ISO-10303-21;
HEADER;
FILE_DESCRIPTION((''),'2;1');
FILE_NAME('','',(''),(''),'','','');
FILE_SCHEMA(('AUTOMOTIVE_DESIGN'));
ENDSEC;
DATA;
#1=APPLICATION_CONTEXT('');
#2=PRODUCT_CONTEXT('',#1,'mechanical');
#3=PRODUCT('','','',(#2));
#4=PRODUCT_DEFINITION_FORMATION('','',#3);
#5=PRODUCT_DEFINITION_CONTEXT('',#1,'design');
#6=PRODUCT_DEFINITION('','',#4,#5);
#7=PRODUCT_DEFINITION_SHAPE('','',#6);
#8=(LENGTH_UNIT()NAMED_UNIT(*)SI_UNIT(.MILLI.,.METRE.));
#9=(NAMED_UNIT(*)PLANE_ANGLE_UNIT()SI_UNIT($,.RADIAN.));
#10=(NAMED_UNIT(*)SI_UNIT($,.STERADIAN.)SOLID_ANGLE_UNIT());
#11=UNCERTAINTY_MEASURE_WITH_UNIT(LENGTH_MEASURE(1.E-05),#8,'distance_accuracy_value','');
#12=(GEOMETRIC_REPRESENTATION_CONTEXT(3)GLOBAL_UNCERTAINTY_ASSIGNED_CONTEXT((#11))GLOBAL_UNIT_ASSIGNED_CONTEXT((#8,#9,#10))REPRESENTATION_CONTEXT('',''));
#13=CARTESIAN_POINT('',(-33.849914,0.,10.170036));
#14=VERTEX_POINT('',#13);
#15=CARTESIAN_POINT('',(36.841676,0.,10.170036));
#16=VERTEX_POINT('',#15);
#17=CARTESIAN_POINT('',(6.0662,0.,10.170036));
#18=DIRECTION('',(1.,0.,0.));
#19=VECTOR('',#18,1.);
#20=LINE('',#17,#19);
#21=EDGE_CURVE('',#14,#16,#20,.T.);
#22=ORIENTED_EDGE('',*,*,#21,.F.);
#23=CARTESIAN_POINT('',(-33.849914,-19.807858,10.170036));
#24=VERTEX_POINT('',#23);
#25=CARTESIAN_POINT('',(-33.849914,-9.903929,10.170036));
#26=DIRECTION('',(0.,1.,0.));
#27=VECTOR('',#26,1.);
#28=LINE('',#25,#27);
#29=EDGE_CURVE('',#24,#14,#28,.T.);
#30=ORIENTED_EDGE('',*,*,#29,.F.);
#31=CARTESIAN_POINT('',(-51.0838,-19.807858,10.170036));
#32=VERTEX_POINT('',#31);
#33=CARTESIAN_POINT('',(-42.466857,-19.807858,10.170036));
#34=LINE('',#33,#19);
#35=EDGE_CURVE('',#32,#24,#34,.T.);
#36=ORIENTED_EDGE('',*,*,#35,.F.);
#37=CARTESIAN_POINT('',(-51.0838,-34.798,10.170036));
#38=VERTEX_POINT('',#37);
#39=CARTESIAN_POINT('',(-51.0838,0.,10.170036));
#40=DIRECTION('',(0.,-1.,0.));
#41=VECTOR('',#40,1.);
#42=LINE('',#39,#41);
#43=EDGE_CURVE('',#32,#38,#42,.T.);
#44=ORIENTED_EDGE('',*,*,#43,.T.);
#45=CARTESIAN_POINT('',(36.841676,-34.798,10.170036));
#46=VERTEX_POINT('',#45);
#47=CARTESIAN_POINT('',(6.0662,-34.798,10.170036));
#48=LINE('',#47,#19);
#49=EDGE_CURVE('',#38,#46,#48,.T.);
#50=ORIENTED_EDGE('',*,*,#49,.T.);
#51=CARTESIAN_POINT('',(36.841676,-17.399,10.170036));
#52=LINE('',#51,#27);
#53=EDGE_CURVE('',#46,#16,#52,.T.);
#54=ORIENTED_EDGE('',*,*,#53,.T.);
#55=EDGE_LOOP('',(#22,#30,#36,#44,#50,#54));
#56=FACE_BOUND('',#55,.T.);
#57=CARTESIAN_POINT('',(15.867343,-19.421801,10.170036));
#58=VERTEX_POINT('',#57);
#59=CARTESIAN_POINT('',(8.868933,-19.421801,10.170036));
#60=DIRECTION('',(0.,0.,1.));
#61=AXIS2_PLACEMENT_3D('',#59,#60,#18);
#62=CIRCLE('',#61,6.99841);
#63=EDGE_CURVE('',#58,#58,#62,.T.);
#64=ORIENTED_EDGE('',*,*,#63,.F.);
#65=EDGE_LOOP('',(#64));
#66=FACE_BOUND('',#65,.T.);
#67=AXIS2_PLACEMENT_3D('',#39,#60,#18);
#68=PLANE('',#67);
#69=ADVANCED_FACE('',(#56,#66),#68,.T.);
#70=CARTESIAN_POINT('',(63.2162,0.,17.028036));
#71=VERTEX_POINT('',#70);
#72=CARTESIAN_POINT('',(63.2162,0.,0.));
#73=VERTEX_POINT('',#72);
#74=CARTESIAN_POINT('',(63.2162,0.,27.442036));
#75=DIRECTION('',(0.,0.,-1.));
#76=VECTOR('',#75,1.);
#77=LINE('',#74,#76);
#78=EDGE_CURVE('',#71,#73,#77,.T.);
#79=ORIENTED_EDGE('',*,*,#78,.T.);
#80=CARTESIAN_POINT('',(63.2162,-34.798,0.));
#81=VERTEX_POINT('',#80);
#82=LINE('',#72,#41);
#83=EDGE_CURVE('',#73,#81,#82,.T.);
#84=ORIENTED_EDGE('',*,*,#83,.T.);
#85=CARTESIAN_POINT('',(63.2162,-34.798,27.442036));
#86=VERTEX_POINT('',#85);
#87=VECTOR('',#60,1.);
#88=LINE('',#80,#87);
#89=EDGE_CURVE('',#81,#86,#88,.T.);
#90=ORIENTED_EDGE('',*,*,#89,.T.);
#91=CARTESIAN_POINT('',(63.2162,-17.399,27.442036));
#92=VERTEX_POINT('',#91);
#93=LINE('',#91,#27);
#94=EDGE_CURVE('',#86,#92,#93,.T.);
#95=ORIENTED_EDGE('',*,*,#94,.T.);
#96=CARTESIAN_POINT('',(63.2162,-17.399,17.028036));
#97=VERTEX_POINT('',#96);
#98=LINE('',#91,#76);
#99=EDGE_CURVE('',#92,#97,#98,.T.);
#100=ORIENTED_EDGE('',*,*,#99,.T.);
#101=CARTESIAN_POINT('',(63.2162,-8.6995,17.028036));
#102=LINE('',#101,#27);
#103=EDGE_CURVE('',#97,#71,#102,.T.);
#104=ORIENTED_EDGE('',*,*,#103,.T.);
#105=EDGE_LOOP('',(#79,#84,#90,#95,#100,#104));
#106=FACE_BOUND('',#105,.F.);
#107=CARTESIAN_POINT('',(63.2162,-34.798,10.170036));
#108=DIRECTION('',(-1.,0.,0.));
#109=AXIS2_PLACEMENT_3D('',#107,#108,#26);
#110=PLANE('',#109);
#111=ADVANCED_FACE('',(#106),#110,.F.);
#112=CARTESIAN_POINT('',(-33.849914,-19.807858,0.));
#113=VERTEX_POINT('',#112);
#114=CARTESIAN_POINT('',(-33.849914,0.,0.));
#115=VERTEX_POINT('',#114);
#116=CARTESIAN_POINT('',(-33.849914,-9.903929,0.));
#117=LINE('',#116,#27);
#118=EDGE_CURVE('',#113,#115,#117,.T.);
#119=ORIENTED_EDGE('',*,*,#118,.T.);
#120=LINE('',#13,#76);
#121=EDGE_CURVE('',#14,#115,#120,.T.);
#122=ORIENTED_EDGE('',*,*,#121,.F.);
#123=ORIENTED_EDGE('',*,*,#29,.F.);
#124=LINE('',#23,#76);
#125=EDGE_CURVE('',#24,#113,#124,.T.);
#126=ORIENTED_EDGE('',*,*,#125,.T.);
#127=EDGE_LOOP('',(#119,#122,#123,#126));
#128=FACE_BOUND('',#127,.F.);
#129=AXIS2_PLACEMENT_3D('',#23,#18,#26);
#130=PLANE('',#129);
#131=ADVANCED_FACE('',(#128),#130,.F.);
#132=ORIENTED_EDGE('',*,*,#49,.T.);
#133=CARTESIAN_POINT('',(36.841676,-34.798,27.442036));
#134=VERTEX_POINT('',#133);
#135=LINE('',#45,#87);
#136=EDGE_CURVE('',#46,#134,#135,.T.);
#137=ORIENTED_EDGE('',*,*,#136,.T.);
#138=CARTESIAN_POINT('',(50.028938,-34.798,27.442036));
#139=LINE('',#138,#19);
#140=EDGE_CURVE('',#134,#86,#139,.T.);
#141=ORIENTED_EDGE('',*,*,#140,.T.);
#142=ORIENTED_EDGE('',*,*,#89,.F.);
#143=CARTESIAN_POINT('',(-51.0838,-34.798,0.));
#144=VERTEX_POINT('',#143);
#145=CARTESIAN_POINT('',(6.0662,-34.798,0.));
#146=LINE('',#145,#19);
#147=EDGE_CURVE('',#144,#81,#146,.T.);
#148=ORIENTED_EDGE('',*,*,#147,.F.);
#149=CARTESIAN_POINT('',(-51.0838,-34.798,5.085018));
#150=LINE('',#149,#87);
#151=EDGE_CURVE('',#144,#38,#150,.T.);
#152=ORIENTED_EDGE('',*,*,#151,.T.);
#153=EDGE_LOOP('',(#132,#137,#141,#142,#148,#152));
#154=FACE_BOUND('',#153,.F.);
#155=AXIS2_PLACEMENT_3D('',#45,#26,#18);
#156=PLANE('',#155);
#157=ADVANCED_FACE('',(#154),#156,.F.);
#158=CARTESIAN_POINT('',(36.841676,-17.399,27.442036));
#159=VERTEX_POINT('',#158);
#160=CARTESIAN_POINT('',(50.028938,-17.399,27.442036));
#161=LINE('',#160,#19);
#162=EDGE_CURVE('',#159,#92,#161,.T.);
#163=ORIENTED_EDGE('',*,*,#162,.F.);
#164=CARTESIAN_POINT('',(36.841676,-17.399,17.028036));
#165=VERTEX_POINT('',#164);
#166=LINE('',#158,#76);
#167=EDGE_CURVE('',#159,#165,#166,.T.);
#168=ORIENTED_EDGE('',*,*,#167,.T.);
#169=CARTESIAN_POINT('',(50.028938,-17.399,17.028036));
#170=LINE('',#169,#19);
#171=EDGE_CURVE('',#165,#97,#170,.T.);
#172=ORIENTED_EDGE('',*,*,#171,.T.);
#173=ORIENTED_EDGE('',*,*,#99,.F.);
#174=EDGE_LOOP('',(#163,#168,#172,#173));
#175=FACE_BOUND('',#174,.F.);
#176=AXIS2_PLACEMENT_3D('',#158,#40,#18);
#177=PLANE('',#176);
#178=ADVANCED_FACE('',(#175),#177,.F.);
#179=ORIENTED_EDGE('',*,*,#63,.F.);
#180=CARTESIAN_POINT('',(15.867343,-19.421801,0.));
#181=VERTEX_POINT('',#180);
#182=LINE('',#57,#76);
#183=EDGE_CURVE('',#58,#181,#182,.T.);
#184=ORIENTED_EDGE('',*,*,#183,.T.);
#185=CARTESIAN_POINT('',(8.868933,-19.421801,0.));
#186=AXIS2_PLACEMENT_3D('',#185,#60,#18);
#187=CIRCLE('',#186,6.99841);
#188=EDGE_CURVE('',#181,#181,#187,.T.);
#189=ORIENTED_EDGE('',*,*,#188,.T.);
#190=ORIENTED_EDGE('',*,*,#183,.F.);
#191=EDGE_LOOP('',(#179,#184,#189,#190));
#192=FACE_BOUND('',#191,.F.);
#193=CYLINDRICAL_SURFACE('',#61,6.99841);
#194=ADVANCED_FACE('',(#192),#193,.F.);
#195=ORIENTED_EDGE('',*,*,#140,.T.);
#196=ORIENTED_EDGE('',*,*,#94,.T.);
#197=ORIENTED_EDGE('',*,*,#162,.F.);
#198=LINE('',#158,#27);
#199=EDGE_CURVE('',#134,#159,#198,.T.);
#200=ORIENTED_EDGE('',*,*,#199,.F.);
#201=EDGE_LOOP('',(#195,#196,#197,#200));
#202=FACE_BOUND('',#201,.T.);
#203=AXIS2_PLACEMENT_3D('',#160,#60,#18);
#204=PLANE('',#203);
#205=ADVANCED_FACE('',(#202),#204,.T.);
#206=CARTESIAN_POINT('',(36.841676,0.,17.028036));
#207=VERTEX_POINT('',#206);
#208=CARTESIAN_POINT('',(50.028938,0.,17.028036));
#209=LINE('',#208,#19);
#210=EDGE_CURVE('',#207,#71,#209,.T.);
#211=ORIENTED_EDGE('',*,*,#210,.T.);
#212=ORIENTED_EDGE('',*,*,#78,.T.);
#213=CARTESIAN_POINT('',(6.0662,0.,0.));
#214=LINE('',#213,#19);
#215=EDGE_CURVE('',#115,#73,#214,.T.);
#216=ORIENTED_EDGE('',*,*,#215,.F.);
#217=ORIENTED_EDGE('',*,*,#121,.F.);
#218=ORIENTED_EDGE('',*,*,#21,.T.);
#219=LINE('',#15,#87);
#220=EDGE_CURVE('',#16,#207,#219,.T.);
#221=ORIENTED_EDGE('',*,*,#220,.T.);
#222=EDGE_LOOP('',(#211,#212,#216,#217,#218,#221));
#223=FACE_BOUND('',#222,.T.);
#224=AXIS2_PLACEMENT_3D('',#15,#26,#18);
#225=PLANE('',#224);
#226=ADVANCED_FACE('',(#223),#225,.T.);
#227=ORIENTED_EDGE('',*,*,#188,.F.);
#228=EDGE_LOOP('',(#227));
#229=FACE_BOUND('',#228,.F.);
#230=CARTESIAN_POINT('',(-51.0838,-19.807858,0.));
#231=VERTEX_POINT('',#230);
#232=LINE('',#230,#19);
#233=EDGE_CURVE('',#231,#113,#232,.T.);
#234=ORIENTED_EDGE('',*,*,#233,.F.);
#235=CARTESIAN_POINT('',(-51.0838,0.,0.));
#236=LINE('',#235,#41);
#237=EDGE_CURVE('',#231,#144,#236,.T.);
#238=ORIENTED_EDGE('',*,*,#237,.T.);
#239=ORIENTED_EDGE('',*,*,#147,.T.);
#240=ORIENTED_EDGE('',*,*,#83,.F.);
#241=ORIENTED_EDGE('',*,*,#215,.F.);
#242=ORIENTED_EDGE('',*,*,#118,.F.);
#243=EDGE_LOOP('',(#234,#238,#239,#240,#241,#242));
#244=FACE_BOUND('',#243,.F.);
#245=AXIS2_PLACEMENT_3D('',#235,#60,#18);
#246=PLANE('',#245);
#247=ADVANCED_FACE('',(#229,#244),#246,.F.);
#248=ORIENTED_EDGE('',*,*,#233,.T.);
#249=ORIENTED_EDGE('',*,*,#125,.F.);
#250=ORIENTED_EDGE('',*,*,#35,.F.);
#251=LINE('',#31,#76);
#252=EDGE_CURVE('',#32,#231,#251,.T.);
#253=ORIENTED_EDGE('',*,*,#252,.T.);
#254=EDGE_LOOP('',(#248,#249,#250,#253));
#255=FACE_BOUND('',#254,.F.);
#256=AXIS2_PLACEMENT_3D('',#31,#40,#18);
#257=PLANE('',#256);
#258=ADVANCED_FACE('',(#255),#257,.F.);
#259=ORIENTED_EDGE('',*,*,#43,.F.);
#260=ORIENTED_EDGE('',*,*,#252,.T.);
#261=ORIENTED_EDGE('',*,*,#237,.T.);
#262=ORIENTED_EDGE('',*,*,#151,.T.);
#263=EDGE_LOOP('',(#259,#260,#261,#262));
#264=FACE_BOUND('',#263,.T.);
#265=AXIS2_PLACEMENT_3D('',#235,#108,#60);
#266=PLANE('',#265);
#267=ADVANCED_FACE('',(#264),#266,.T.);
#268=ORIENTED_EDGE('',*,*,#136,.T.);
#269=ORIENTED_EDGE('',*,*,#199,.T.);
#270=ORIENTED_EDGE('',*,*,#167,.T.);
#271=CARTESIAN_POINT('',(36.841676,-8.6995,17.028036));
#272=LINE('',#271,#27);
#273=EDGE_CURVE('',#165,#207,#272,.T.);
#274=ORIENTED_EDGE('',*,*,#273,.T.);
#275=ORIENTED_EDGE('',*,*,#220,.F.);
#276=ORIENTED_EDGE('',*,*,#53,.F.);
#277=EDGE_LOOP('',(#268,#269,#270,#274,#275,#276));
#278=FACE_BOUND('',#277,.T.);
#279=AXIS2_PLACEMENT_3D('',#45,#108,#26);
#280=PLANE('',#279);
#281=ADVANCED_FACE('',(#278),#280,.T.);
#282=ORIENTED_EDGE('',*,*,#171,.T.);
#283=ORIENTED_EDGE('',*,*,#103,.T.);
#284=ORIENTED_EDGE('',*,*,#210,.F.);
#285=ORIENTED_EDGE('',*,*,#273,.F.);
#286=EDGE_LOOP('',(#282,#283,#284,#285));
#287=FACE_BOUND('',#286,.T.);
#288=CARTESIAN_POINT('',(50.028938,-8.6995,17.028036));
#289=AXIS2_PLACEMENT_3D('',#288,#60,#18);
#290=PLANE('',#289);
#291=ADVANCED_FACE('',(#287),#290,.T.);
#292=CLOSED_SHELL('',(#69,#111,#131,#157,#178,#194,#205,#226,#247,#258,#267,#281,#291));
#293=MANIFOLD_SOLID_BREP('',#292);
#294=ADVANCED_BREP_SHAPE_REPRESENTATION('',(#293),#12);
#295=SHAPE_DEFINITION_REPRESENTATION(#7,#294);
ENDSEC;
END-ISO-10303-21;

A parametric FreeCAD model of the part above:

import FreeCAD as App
import Part
import Sketcher
Q = App.Units.Quantity

doc = App.newDocument("Part")
body = doc.addObject("PartDesign::Body", "Body")

sketch1 = body.newObject("Sketcher::SketchObject", "Sketch")
sketch1.AttachmentSupport = (doc.getObject("XZ_Plane"), [""])
sketch1.MapMode = "FlatFace"
sketch1.addGeometry(Part.LineSegment(App.Vector(-51.0838, 10.170036, 0), App.Vector(-51.0838, 0, 0)), False)
sketch1.addGeometry(Part.LineSegment(App.Vector(-51.0838, 0, 0), App.Vector(63.2162, 0, 0)), False)
sketch1.addGeometry(Part.LineSegment(App.Vector(63.2162, 0, 0), App.Vector(63.2162, 10.170036, 0)), False)
sketch1.addGeometry(Part.LineSegment(App.Vector(63.2162, 10.170036, 0), App.Vector(-51.0838, 10.170036, 0)), False)
sketch1.addConstraint(Sketcher.Constraint("Coincident", 0, 2, 1, 1))
sketch1.addConstraint(Sketcher.Constraint("Coincident", 1, 2, 2, 1))
sketch1.addConstraint(Sketcher.Constraint("Coincident", 2, 2, 3, 1))
sketch1.addConstraint(Sketcher.Constraint("Coincident", 3, 2, 0, 1))
sketch1.addConstraint(Sketcher.Constraint("Vertical", 0))
sketch1.addConstraint(Sketcher.Constraint("Horizontal", 1))
sketch1.addConstraint(Sketcher.Constraint("Vertical", 2))
sketch1.addConstraint(Sketcher.Constraint("Horizontal", 3))
sketch1.addConstraint(Sketcher.Constraint("PointOnObject", 0, 2, -1))
sketch1.addConstraint(Sketcher.Constraint("DistanceX", 1, 1, 1, 2, Q("4.5 in")))
sketch1.addConstraint(Sketcher.Constraint("DistanceX", 0, 2, -1, 1, 51.0838))
sketch1.addConstraint(Sketcher.Constraint("DistanceY", 0, 2, 0, 1, 10.170036))
pad1 = body.newObject("PartDesign::Pad", "Pad")
pad1.Profile = sketch1
pad1.Length = Q("1.37 in")

sketch2 = body.newObject("Sketcher::SketchObject", "Sketch001")
sketch2.AttachmentSupport = (doc.getObject("XY_Plane"), [""])
sketch2.MapMode = "FlatFace"
sketch2.AttachmentOffset = App.Placement(App.Vector(0, 0, 10.170036), App.Rotation())
sketch2.addGeometry(Part.LineSegment(App.Vector(-51.0838, 0, 0), App.Vector(-51.0838, -19.807858, 0)), False)
sketch2.addGeometry(Part.LineSegment(App.Vector(-51.0838, -19.807858, 0), App.Vector(-33.849914, -19.807858, 0)), False)
sketch2.addGeometry(Part.LineSegment(App.Vector(-33.849914, -19.807858, 0), App.Vector(-33.849914, 0, 0)), False)
sketch2.addGeometry(Part.LineSegment(App.Vector(-33.849914, 0, 0), App.Vector(-51.0838, 0, 0)), False)
sketch2.addConstraint(Sketcher.Constraint("Coincident", 0, 2, 1, 1))
sketch2.addConstraint(Sketcher.Constraint("Coincident", 1, 2, 2, 1))
sketch2.addConstraint(Sketcher.Constraint("Coincident", 2, 2, 3, 1))
sketch2.addConstraint(Sketcher.Constraint("Coincident", 3, 2, 0, 1))
sketch2.addConstraint(Sketcher.Constraint("Vertical", 0))
sketch2.addConstraint(Sketcher.Constraint("Horizontal", 1))
sketch2.addConstraint(Sketcher.Constraint("Vertical", 2))
sketch2.addConstraint(Sketcher.Constraint("Horizontal", 3))
sketch2.addConstraint(Sketcher.Constraint("PointOnObject", 2, 2, -1))
sketch2.addConstraint(Sketcher.Constraint("DistanceX", 0, 2, -1, 1, 51.0838))
sketch2.addConstraint(Sketcher.Constraint("DistanceX", 1, 1, 1, 2, 17.233886))
sketch2.addConstraint(Sketcher.Constraint("DistanceY", 0, 2, 0, 1, 19.807858))
pocket1 = body.newObject("PartDesign::Pocket", "Pocket")
pocket1.Profile = sketch2
pocket1.Length = Q("1 in")

sketch3 = body.newObject("Sketcher::SketchObject", "Sketch002")
sketch3.AttachmentSupport = (doc.getObject("XY_Plane"), [""])
sketch3.MapMode = "FlatFace"
sketch3.AttachmentOffset = App.Placement(App.Vector(0, 0, 10.170036), App.Rotation())
sketch3.addGeometry(Part.Circle(App.Vector(8.868933, -19.421801, 0), App.Vector(0, 0, 1), 6.99841), False)
sketch3.addConstraint(Sketcher.Constraint("Diameter", 0, 13.99682))
sketch3.addConstraint(Sketcher.Constraint("DistanceY", 0, 3, -1, 1, 19.421801))
sketch3.addConstraint(Sketcher.Constraint("DistanceX", -1, 1, 0, 3, 8.868933))
pocket2 = body.newObject("PartDesign::Pocket", "Pocket001")
pocket2.Profile = sketch3
pocket2.Length = Q("1 in")

sketch4 = body.newObject("Sketcher::SketchObject", "Sketch003")
sketch4.AttachmentSupport = (doc.getObject("XY_Plane"), [""])
sketch4.MapMode = "FlatFace"
sketch4.AttachmentOffset = App.Placement(App.Vector(0, 0, 10.170036), App.Rotation())
sketch4.addGeometry(Part.LineSegment(App.Vector(36.841676, 0, 0), App.Vector(36.841676, -34.798, 0)), False)
sketch4.addGeometry(Part.LineSegment(App.Vector(36.841676, -34.798, 0), App.Vector(63.2162, -34.798, 0)), False)
sketch4.addGeometry(Part.LineSegment(App.Vector(63.2162, -34.798, 0), App.Vector(63.2162, 0, 0)), False)
sketch4.addGeometry(Part.LineSegment(App.Vector(63.2162, 0, 0), App.Vector(36.841676, 0, 0)), False)
sketch4.addConstraint(Sketcher.Constraint("Coincident", 0, 2, 1, 1))
sketch4.addConstraint(Sketcher.Constraint("Coincident", 1, 2, 2, 1))
sketch4.addConstraint(Sketcher.Constraint("Coincident", 2, 2, 3, 1))
sketch4.addConstraint(Sketcher.Constraint("Coincident", 3, 2, 0, 1))
sketch4.addConstraint(Sketcher.Constraint("Vertical", 0))
sketch4.addConstraint(Sketcher.Constraint("Horizontal", 1))
sketch4.addConstraint(Sketcher.Constraint("Vertical", 2))
sketch4.addConstraint(Sketcher.Constraint("Horizontal", 3))
sketch4.addConstraint(Sketcher.Constraint("PointOnObject", 2, 2, -1))
sketch4.addConstraint(Sketcher.Constraint("DistanceY", 0, 2, 0, 1, Q("1.37 in")))
sketch4.addConstraint(Sketcher.Constraint("DistanceX", -1, 1, 1, 2, 63.2162))
sketch4.addConstraint(Sketcher.Constraint("DistanceX", 1, 1, 1, 2, 26.374524))
pad2 = body.newObject("PartDesign::Pad", "Pad001")
pad2.Profile = sketch4
pad2.Length = Q("0.68 in")

sketch5 = body.newObject("Sketcher::SketchObject", "Sketch004")
sketch5.AttachmentSupport = (doc.getObject("XY_Plane"), [""])
sketch5.MapMode = "FlatFace"
sketch5.AttachmentOffset = App.Placement(App.Vector(0, 0, 27.442036), App.Rotation())
sketch5.addGeometry(Part.LineSegment(App.Vector(36.841676, 0, 0), App.Vector(36.841676, -17.399, 0)), False)
sketch5.addGeometry(Part.LineSegment(App.Vector(36.841676, -17.399, 0), App.Vector(63.2162, -17.399, 0)), False)
sketch5.addGeometry(Part.LineSegment(App.Vector(63.2162, -17.399, 0), App.Vector(63.2162, 0, 0)), False)
sketch5.addGeometry(Part.LineSegment(App.Vector(63.2162, 0, 0), App.Vector(36.841676, 0, 0)), False)
sketch5.addConstraint(Sketcher.Constraint("Coincident", 0, 2, 1, 1))
sketch5.addConstraint(Sketcher.Constraint("Coincident", 1, 2, 2, 1))
sketch5.addConstraint(Sketcher.Constraint("Coincident", 2, 2, 3, 1))
sketch5.addConstraint(Sketcher.Constraint("Coincident", 3, 2, 0, 1))
sketch5.addConstraint(Sketcher.Constraint("Vertical", 0))
sketch5.addConstraint(Sketcher.Constraint("Horizontal", 1))
sketch5.addConstraint(Sketcher.Constraint("Vertical", 2))
sketch5.addConstraint(Sketcher.Constraint("Horizontal", 3))
sketch5.addConstraint(Sketcher.Constraint("PointOnObject", 2, 2, -1))
sketch5.addConstraint(Sketcher.Constraint("DistanceY", 0, 2, 0, 1, Q("0.685 in")))
sketch5.addConstraint(Sketcher.Constraint("DistanceX", -1, 1, 1, 2, 63.2162))
sketch5.addConstraint(Sketcher.Constraint("DistanceX", 1, 1, 1, 2, 26.374524))
pocket3 = body.newObject("PartDesign::Pocket", "Pocket002")
pocket3.Profile = sketch5
pocket3.Length = Q("0.41 in")

doc.recompute()
